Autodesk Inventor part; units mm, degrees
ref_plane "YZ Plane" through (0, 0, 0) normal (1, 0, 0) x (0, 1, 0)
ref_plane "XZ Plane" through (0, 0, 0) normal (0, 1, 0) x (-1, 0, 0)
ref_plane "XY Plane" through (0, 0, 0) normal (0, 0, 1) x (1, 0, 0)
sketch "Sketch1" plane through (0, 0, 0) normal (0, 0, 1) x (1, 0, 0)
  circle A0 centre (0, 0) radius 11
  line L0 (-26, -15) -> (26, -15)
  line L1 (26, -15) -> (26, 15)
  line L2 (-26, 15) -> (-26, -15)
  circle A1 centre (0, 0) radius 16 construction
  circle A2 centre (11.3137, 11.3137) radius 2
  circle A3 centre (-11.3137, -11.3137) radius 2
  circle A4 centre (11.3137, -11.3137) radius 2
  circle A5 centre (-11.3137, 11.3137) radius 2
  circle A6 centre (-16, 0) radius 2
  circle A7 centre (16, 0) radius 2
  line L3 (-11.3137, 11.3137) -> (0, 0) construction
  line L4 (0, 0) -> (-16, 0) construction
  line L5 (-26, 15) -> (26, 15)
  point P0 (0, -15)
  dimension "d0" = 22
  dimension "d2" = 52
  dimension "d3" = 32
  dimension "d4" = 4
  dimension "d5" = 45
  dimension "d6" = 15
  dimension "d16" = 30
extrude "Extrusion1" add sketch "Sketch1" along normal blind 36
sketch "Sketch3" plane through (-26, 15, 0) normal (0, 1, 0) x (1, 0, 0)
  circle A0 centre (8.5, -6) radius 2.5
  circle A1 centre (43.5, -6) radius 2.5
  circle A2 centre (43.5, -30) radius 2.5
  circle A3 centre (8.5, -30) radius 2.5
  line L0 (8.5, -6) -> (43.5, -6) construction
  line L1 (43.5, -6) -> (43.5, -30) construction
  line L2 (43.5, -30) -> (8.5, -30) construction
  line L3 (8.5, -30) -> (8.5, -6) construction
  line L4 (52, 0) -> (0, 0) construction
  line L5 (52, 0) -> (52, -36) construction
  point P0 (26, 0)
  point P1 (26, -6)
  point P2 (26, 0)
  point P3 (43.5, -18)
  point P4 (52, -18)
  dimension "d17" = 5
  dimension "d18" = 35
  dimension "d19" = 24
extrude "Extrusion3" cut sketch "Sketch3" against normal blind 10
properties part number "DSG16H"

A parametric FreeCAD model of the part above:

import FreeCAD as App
import Part
import Sketcher
from FreeCAD import Vector
Q = App.Units.Quantity

doc = App.newDocument("Part")
body = doc.addObject("PartDesign::Body", "Body")

# Sketch on XY plane
sketch1 = doc.addObject("Sketcher::SketchObject", "Sketch")
body.addObject(sketch1)
sketch1.AttachmentSupport = (doc.XY_Plane, [""])
sketch1.MapMode = "FlatFace"
sketch1.addGeometry([
    Part.LineSegment(Vector(-26, 15, 0), Vector(-26, -15, 0)),  # 0
    Part.LineSegment(Vector(-26, -15, 0), Vector(26, -15, 0)),  # 1
    Part.LineSegment(Vector(26, -15, 0), Vector(26, 15, 0)),  # 2
    Part.LineSegment(Vector(26, 15, 0), Vector(-26, 15, 0)),  # 3
    Part.Circle(Vector(-11.3, -11.3, 0), Vector(0, 0, 1), 2),  # 4
    Part.Circle(Vector(11.3, -11.3, 0), Vector(0, 0, 1), 2),  # 5
    Part.Circle(Vector(-16, 0, 0), Vector(0, 0, 1), 2),  # 6
    Part.Circle(Vector(-11.3, 11.3, 0), Vector(0, 0, 1), 2),  # 7
    Part.Circle(Vector(0, 0, 0), Vector(0, 0, 1), 11),  # 8
    Part.Circle(Vector(16, 0, 0), Vector(0, 0, 1), 2),  # 9
    Part.Circle(Vector(11.3, 11.3, 0), Vector(0, 0, 1), 2),  # 10
], False)
sketch1.addConstraint([
    Sketcher.Constraint("Coincident", 0, 2, 1, 1),
    Sketcher.Constraint("Coincident", 1, 2, 2, 1),
    Sketcher.Constraint("Coincident", 2, 2, 3, 1),
    Sketcher.Constraint("Coincident", 3, 2, 0, 1),
    Sketcher.Constraint("Vertical", 0),
    Sketcher.Constraint("Horizontal", 1),
    Sketcher.Constraint("Vertical", 2),
    Sketcher.Constraint("Horizontal", 3),
    Sketcher.Constraint("Coincident", 8, 3, -1, 1),
    Sketcher.Constraint("Equal", 4, 5),
    Sketcher.Constraint("Equal", 5, 6),
    Sketcher.Constraint("Equal", 6, 7),
    Sketcher.Constraint("Equal", 7, 9),
    Sketcher.Constraint("Equal", 9, 10),
    Sketcher.Constraint("Symmetric", 5, 3, 7, 3, -1, 1),
    Sketcher.Constraint("Symmetric", 6, 3, 9, 3, -1, 1),
    Sketcher.Constraint("Symmetric", 4, 3, 10, 3, -1, 1),
    Sketcher.Constraint("Symmetric", 0, 2, 2, 2, -1, 1),
    Sketcher.Constraint("Symmetric", 4, 3, 5, 3, -2),
    Sketcher.Constraint("PointOnObject", 6, 3, -1),
    Sketcher.Constraint("Diameter", 4, Q("4 mm")),
    Sketcher.Constraint("Diameter", 8, Q("22 mm")),
    Sketcher.Constraint("DistanceX", 1, 1, 1, 2, Q("52 mm")),
    Sketcher.Constraint("DistanceY", 0, 2, 0, 1, Q("30 mm")),
    Sketcher.Constraint("DistanceX", 6, 3, 9, 3, Q("32 mm")),
    Sketcher.Constraint("DistanceX", 4, 3, -1, 1, Q("11.3137 mm")),
    Sketcher.Constraint("DistanceY", 4, 3, -1, 1, Q("11.3137 mm")),
])
pad1 = doc.addObject("PartDesign::Pad", "Pad")
body.addObject(pad1)
pad1.Profile = sketch1
pad1.Length = 36

# Sketch on XZ plane
sketch2 = doc.addObject("Sketcher::SketchObject", "Sketch001")
body.addObject(sketch2)
sketch2.AttachmentSupport = (doc.XZ_Plane, [""])
sketch2.MapMode = "FlatFace"
sketch2.AttachmentOffset = App.Placement(Vector(0, 0, -15), App.Rotation())
sketch2.addGeometry([
    Part.Circle(Vector(-17.5, 6, 0), Vector(0, 0, 1), 2.5),
    Part.Circle(Vector(17.5, 6, 0), Vector(0, 0, 1), 2.5),
    Part.Circle(Vector(17.5, 30, 0), Vector(0, 0, 1), 2.5),
    Part.Circle(Vector(-17.5, 30, 0), Vector(0, 0, 1), 2.5),
], False)
sketch2.addConstraint([
    Sketcher.Constraint("Equal", 0, 1),
    Sketcher.Constraint("Equal", 1, 2),
    Sketcher.Constraint("Equal", 2, 3),
    Sketcher.Constraint("Symmetric", 0, 3, 1, 3, -2),
    Sketcher.Constraint("Symmetric", 2, 3, 3, 3, -2),
    Sketcher.Constraint("Vertical", 1, 3, 2, 3),
    Sketcher.Constraint("Diameter", 0, Q("5 mm")),
    Sketcher.Constraint("DistanceX", 0, 3, 1, 3, Q("35 mm")),
    Sketcher.Constraint("DistanceY", 1, 3, 2, 3, Q("24 mm")),
    Sketcher.Constraint("DistanceY", -1, 1, 0, 3, Q("6 mm")),
])
pocket1 = doc.addObject("PartDesign::Pocket", "Pocket")
body.addObject(pocket1)
pocket1.Profile = sketch2
pocket1.Length = 10
pocket1.Reversed = True

doc.recompute()
